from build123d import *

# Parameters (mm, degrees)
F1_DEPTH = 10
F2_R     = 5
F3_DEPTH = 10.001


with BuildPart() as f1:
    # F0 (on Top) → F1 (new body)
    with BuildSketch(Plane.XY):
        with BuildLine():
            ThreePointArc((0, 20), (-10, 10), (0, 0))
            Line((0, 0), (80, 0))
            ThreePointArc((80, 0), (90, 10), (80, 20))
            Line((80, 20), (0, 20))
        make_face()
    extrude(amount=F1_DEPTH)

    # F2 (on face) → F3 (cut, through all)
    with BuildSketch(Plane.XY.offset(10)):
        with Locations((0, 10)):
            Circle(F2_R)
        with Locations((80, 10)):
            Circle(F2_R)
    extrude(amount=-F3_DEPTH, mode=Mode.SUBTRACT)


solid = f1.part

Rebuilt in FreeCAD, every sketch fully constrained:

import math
import FreeCAD as App
import Part
import Sketcher

doc = App.newDocument("Part")
body = doc.addObject("PartDesign::Body", "Body")

# Sketch on XY plane
sketch1 = body.newObject("Sketcher::SketchObject", "Sketch")
sketch1.AttachmentSupport = (doc.getObject("XY_Plane"), [""])
sketch1.MapMode = "FlatFace"
sketch1.addGeometry([
    Part.ArcOfCircle(Part.Circle(App.Vector(0, 10, 0), App.Vector(0, 0, 1), 10), math.radians(90), math.radians(270)),
    Part.LineSegment(App.Vector(0, 0, 0), App.Vector(80, 0, 0)),
    Part.ArcOfCircle(Part.Circle(App.Vector(80, 10, 0), App.Vector(0, 0, 1), 10), math.radians(-90), math.radians(90)),
    Part.LineSegment(App.Vector(80, 20, 0), App.Vector(0, 20, 0)),
], False)
sketch1.addConstraint([
    Sketcher.Constraint("Tangent", 0, 2, 1, 1),
    Sketcher.Constraint("Tangent", 1, 2, 2, 1),
    Sketcher.Constraint("Tangent", 2, 2, 3, 1),
    Sketcher.Constraint("Tangent", 3, 2, 0, 1),
    Sketcher.Constraint("Horizontal", 1),
    Sketcher.Constraint("Horizontal", 3),
    Sketcher.Constraint("Coincident", 0, 2, -1, 1),
    Sketcher.Constraint("Radius", 0, 10.0),
    Sketcher.Constraint("DistanceX", 1, 1, 1, 2, 80.0),
])
pad1 = body.newObject("PartDesign::Pad", "Pad")
pad1.Profile = sketch1
pad1.Length = 10

# Sketch on XY plane
sketch2 = body.newObject("Sketcher::SketchObject", "Sketch001")
sketch2.AttachmentSupport = (doc.getObject("XY_Plane"), [""])
sketch2.MapMode = "FlatFace"
sketch2.AttachmentOffset = App.Placement(App.Vector(0, 0, 10), App.Rotation())
sketch2.addGeometry([
    Part.Circle(App.Vector(0, 10, 0), App.Vector(0, 0, 1), 5),
    Part.Circle(App.Vector(80, 10, 0), App.Vector(0, 0, 1), 5),
], False)
sketch2.addConstraint([
    Sketcher.Constraint("Equal", 0, 1),
    Sketcher.Constraint("PointOnObject", 0, 3, -2),
    Sketcher.Constraint("Horizontal", 0, 3, 1, 3),
    Sketcher.Constraint("Diameter", 0, 10.0),
    Sketcher.Constraint("DistanceY", -1, 1, 0, 3, 10.0),
    Sketcher.Constraint("DistanceX", -1, 1, 1, 3, 80.0),
])
pocket1 = body.newObject("PartDesign::Pocket", "Pocket")
pocket1.Profile = sketch2
pocket1.Type = "ThroughAll"

doc.recompute()
